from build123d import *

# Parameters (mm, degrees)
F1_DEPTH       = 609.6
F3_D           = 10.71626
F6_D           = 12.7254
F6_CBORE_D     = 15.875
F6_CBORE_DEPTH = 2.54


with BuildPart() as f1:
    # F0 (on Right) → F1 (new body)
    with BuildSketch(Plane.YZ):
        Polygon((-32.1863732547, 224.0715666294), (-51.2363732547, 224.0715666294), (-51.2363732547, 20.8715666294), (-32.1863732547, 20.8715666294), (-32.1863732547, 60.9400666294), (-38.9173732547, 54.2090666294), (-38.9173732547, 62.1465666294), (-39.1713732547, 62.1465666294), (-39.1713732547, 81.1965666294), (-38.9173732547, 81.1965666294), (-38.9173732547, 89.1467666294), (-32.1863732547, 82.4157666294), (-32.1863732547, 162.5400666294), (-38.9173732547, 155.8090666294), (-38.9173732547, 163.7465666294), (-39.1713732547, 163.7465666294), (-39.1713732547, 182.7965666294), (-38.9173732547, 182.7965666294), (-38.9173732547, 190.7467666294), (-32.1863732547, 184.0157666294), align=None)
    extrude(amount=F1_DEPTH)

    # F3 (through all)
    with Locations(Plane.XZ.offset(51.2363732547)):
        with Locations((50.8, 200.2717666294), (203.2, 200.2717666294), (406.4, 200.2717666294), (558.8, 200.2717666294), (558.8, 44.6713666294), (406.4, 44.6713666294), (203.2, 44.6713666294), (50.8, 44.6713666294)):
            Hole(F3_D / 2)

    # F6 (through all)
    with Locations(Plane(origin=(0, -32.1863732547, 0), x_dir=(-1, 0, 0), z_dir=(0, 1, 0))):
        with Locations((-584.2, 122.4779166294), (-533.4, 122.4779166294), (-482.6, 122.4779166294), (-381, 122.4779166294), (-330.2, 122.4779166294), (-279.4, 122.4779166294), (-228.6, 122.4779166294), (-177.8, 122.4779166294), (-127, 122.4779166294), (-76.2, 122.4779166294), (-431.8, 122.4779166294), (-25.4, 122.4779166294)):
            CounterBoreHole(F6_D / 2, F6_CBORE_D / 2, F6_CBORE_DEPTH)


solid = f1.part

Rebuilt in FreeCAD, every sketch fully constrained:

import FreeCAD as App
import Part
import Sketcher
Q = App.Units.Quantity


def add_polygon(sketch, points):
    """Adds a closed chain of lines whose ends are joined by coincident constraints."""
    first, n = sketch.GeometryCount, len(points)
    for a, b in zip(points, points[1:] + points[:1]):
        sketch.addGeometry(Part.LineSegment(App.Vector(*a, 0), App.Vector(*b, 0)), False)
    for i in range(n):
        sketch.addConstraint(Sketcher.Constraint("Coincident", first + i, 2, first + (i + 1) % n, 1))

doc = App.newDocument("Part")
params = doc.addObject("Spreadsheet::Sheet", "Params")
for row, (alias, value) in enumerate([
    ("sketch1_height", "8 in"),
    ("sketch1_width", "0.75 in"),
    ("sketch1_width2", "0.01 in"),
    ("sketch1_height2", "0.3125 in"),
    ("sketch1_height3", "0.313 in"),
    ("pad1_length", "24 in"),
    ("hole_diameter", "0.4219 in"),
    ("sketch3_diameter", "0.501 in"),
    ("hole2_diameter", "0.501 in"),
    ("hole2_cbore_diameter", "0.625 in"),
    ("hole2_cbore_depth", "0.1 in"),
], start=1):
    params.set(f"A{row}", alias)
    params.set(f"B{row}", "=" + value)
    params.setAlias(f"B{row}", alias)

body = doc.addObject("PartDesign::Body", "Body")

sketch1 = body.newObject("Sketcher::SketchObject", "Sketch")
sketch1.AttachmentSupport = (doc.getObject("YZ_Plane"), [""])
sketch1.MapMode = "FlatFace"
add_polygon(sketch1, [(-32.19, 224.07), (-51.24, 224.07), (-51.24, 20.87), (-32.19, 20.87), (-32.19, 60.94), (-38.92, 54.21), (-38.92, 62.15), (-39.17, 62.15), (-39.17, 81.2), (-38.92, 81.2), (-38.92, 89.15), (-32.19, 82.42), (-32.19, 162.54), (-38.92, 155.81), (-38.92, 163.75), (-39.17, 163.75), (-39.17, 182.8), (-38.92, 182.8), (-38.92, 190.75), (-32.19, 184.02)])
sketch1.addConstraint([
    Sketcher.Constraint("Horizontal", 0),
    Sketcher.Constraint("Vertical", 1),
    Sketcher.Constraint("Horizontal", 2),
    Sketcher.Constraint("Vertical", 3),
    Sketcher.Constraint("Vertical", 5),
    Sketcher.Constraint("Horizontal", 6),
    Sketcher.Constraint("Vertical", 7),
    Sketcher.Constraint("Horizontal", 8),
    Sketcher.Constraint("Vertical", 9),
    Sketcher.Constraint("Vertical", 11),
    Sketcher.Constraint("Vertical", 13),
    Sketcher.Constraint("Horizontal", 14),
    Sketcher.Constraint("Vertical", 15),
    Sketcher.Constraint("Horizontal", 16),
    Sketcher.Constraint("Vertical", 17),
    Sketcher.Constraint("Vertical", 19),
    Sketcher.Constraint("Perpendicular", 4, 10),
    Sketcher.Constraint("Perpendicular", 10, 12),
    Sketcher.Constraint("Perpendicular", 12, 18),
    Sketcher.Constraint("Vertical", 5, 2, 8, 2),
    Sketcher.Constraint("Vertical", 3, 2, 10, 2),
    Sketcher.Constraint("Vertical", 9, 2, 12, 2),
    Sketcher.Constraint("Vertical", 7, 2, 14, 2),
    Sketcher.Constraint("Vertical", 13, 2, 16, 2),
    Sketcher.Constraint("Vertical", 11, 2, 18, 2),
    Sketcher.Constraint("Equal", 2, 7),
    Sketcher.Constraint("Equal", 5, 13),
    Sketcher.Constraint("Equal", 7, 15),
    Sketcher.Constraint("Equal", 9, 17),
    Sketcher.Constraint("Equal", 4, 10),
    Sketcher.Constraint("DistanceY", 1, 2, 1, 1, Q("8 in")),
    Sketcher.Constraint("DistanceX", 0, 2, 0, 1, Q("0.75 in")),
    Sketcher.Constraint("DistanceX", 6, 2, 6, 1, Q("0.01 in")),
    Sketcher.Constraint("DistanceY", 5, 1, 5, 2, Q("0.3125 in")),
    Sketcher.Constraint("DistanceY", 9, 1, 9, 2, Q("0.313 in")),
    Sketcher.Constraint("DistanceY", 19, 1, 19, 2, Q("1.577 in")),
    Sketcher.Constraint("DistanceY", 3, 1, 3, 2, Q("1.5775 in")),
    Sketcher.Constraint("DistanceY", 11, 1, 11, 2, Q("3.1545 in")),
    Sketcher.Constraint("DistanceX", 0, 2, -1, 1, Q("51.236373 mm")),
    Sketcher.Constraint("DistanceY", -1, 1, 0, 2, Q("224.071567 mm")),
])
sketch1.setExpression("Constraints[50]", "Params.sketch1_height")
sketch1.setExpression("Constraints[51]", "Params.sketch1_width")
sketch1.setExpression("Constraints[52]", "Params.sketch1_width2")
sketch1.setExpression("Constraints[53]", "Params.sketch1_height2")
sketch1.setExpression("Constraints[54]", "Params.sketch1_height3")
pad1 = body.newObject("PartDesign::Pad", "Pad")
pad1.Profile = sketch1
pad1.setExpression("Length", "Params.pad1_length")

sketch2 = body.newObject("Sketcher::SketchObject", "Sketch001")
sketch2.AttachmentSupport = (doc.getObject("XZ_Plane"), [""])
sketch2.MapMode = "FlatFace"
sketch2.AttachmentOffset = App.Placement(App.Vector(0, 0, 51.236373), App.Rotation())
sketch2.addGeometry([
    Part.Circle(App.Vector(51, 200, 0), App.Vector(0, 0, 1), 5),
    Part.Circle(App.Vector(203, 200, 0), App.Vector(0, 0, 1), 5),
    Part.Circle(App.Vector(406, 200, 0), App.Vector(0, 0, 1), 5),
    Part.Circle(App.Vector(559, 200, 0), App.Vector(0, 0, 1), 5),
    Part.Circle(App.Vector(559, 45, 0), App.Vector(0, 0, 1), 5),
    Part.Circle(App.Vector(406, 45, 0), App.Vector(0, 0, 1), 5),
    Part.Circle(App.Vector(203, 45, 0), App.Vector(0, 0, 1), 5),
    Part.Circle(App.Vector(51, 45, 0), App.Vector(0, 0, 1), 5),
], False)
sketch2.addConstraint([
    Sketcher.Constraint("Equal", 0, 1),
    Sketcher.Constraint("Equal", 1, 2),
    Sketcher.Constraint("Equal", 2, 3),
    Sketcher.Constraint("Equal", 3, 4),
    Sketcher.Constraint("Equal", 4, 5),
    Sketcher.Constraint("Equal", 5, 6),
    Sketcher.Constraint("Equal", 6, 7),
    Sketcher.Constraint("Horizontal", 0, 3, 1, 3),
    Sketcher.Constraint("Horizontal", 1, 3, 2, 3),
    Sketcher.Constraint("Horizontal", 2, 3, 3, 3),
    Sketcher.Constraint("Horizontal", 4, 3, 5, 3),
    Sketcher.Constraint("Horizontal", 5, 3, 6, 3),
    Sketcher.Constraint("Horizontal", 6, 3, 7, 3),
    Sketcher.Constraint("Vertical", 3, 3, 4, 3),
    Sketcher.Constraint("Vertical", 2, 3, 5, 3),
    Sketcher.Constraint("Vertical", 1, 3, 6, 3),
    Sketcher.Constraint("Vertical", 0, 3, 7, 3),
    Sketcher.Constraint("DistanceX", -1, 1, 0, 3, Q("2 in")),
    Sketcher.Constraint("DistanceX", -1, 1, 1, 3, Q("8 in")),
    Sketcher.Constraint("DistanceX", -1, 1, 2, 3, Q("16 in")),
    Sketcher.Constraint("DistanceX", -1, 1, 3, 3, Q("22 in")),
    Sketcher.Constraint("Diameter", 0, Q("0.4219 in")),
    Sketcher.Constraint("DistanceY", 4, 3, 3, 3, Q("6.126 in")),
    Sketcher.Constraint("DistanceY", -1, 1, 0, 3, Q("200.271767 mm")),
])
doc.recompute()
hole = body.newObject("PartDesign::Hole", "Hole")
hole.Profile = sketch2
hole.ThreadType = "None"
hole.setExpression("Diameter", "Params.hole_diameter")
hole.DepthType = "ThroughAll"

sketch3 = body.newObject("Sketcher::SketchObject", "Sketch002")
sketch3.AttachmentSupport = (doc.getObject("XZ_Plane"), [""])
sketch3.MapMode = "FlatFace"
sketch3.AttachmentOffset = App.Placement(App.Vector(0, 0, 32.186373), App.Rotation())
sketch3.addGeometry([
    Part.Circle(App.Vector(584, 122, 0), App.Vector(0, 0, 1), 6),
    Part.Circle(App.Vector(533, 122, 0), App.Vector(0, 0, 1), 6),
    Part.Circle(App.Vector(483, 122, 0), App.Vector(0, 0, 1), 6),
    Part.Circle(App.Vector(381, 122, 0), App.Vector(0, 0, 1), 6),
    Part.Circle(App.Vector(330, 122, 0), App.Vector(0, 0, 1), 6),
    Part.Circle(App.Vector(279, 122, 0), App.Vector(0, 0, 1), 6),
    Part.Circle(App.Vector(229, 122, 0), App.Vector(0, 0, 1), 6),
    Part.Circle(App.Vector(178, 122, 0), App.Vector(0, 0, 1), 6),
    Part.Circle(App.Vector(127, 122, 0), App.Vector(0, 0, 1), 6),
    Part.Circle(App.Vector(76, 122, 0), App.Vector(0, 0, 1), 6),
    Part.Circle(App.Vector(432, 122, 0), App.Vector(0, 0, 1), 6),
    Part.Circle(App.Vector(25, 122, 0), App.Vector(0, 0, 1), 6),
], False)
sketch3.addConstraint([
    Sketcher.Constraint("Equal", 0, 1),
    Sketcher.Constraint("Equal", 1, 2),
    Sketcher.Constraint("Equal", 2, 3),
    Sketcher.Constraint("Equal", 3, 4),
    Sketcher.Constraint("Equal", 4, 5),
    Sketcher.Constraint("Equal", 5, 6),
    Sketcher.Constraint("Equal", 6, 7),
    Sketcher.Constraint("Equal", 7, 8),
    Sketcher.Constraint("Equal", 8, 9),
    Sketcher.Constraint("Equal", 9, 10),
    Sketcher.Constraint("Equal", 10, 11),
    Sketcher.Constraint("Horizontal", 0, 3, 1, 3),
    Sketcher.Constraint("Horizontal", 1, 3, 2, 3),
    Sketcher.Constraint("Horizontal", 2, 3, 3, 3),
    Sketcher.Constraint("Horizontal", 3, 3, 4, 3),
    Sketcher.Constraint("Horizontal", 4, 3, 5, 3),
    Sketcher.Constraint("Horizontal", 5, 3, 6, 3),
    Sketcher.Constraint("Horizontal", 6, 3, 7, 3),
    Sketcher.Constraint("Horizontal", 7, 3, 8, 3),
    Sketcher.Constraint("Horizontal", 8, 3, 9, 3),
    Sketcher.Constraint("Horizontal", 9, 3, 10, 3),
    Sketcher.Constraint("Horizontal", 10, 3, 11, 3),
    Sketcher.Constraint("Diameter", 0, Q("0.501 in")),
    Sketcher.Constraint("DistanceX", -1, 1, 0, 3, Q("23 in")),
    Sketcher.Constraint("DistanceX", -1, 1, 1, 3, Q("21 in")),
    Sketcher.Constraint("DistanceX", -1, 1, 2, 3, Q("19 in")),
    Sketcher.Constraint("DistanceX", -1, 1, 3, 3, Q("15 in")),
    Sketcher.Constraint("DistanceX", -1, 1, 4, 3, Q("13 in")),
    Sketcher.Constraint("DistanceX", -1, 1, 5, 3, Q("11 in")),
    Sketcher.Constraint("DistanceX", -1, 1, 6, 3, Q("9 in")),
    Sketcher.Constraint("DistanceX", -1, 1, 7, 3, Q("7 in")),
    Sketcher.Constraint("DistanceX", -1, 1, 8, 3, Q("5 in")),
    Sketcher.Constraint("DistanceX", -1, 1, 9, 3, Q("3 in")),
    Sketcher.Constraint("DistanceX", -1, 1, 10, 3, Q("17 in")),
    Sketcher.Constraint("DistanceX", -1, 1, 11, 3, Q("1 in")),
    Sketcher.Constraint("DistanceY", -1, 1, 0, 3, Q("122.477917 mm")),
])
sketch3.setExpression("Constraints[22]", "Params.sketch3_diameter")
doc.recompute()
hole2 = body.newObject("PartDesign::Hole", "Hole001")
hole2.Profile = sketch3
hole2.ThreadType = "None"
hole2.setExpression("Diameter", "Params.hole2_diameter")
hole2.DepthType = "ThroughAll"
hole2.HoleCutType = "Counterbore"
hole2.setExpression("HoleCutDiameter", "Params.hole2_cbore_diameter")
hole2.setExpression("HoleCutDepth", "Params.hole2_cbore_depth")
hole2.Reversed = True

doc.recompute()
